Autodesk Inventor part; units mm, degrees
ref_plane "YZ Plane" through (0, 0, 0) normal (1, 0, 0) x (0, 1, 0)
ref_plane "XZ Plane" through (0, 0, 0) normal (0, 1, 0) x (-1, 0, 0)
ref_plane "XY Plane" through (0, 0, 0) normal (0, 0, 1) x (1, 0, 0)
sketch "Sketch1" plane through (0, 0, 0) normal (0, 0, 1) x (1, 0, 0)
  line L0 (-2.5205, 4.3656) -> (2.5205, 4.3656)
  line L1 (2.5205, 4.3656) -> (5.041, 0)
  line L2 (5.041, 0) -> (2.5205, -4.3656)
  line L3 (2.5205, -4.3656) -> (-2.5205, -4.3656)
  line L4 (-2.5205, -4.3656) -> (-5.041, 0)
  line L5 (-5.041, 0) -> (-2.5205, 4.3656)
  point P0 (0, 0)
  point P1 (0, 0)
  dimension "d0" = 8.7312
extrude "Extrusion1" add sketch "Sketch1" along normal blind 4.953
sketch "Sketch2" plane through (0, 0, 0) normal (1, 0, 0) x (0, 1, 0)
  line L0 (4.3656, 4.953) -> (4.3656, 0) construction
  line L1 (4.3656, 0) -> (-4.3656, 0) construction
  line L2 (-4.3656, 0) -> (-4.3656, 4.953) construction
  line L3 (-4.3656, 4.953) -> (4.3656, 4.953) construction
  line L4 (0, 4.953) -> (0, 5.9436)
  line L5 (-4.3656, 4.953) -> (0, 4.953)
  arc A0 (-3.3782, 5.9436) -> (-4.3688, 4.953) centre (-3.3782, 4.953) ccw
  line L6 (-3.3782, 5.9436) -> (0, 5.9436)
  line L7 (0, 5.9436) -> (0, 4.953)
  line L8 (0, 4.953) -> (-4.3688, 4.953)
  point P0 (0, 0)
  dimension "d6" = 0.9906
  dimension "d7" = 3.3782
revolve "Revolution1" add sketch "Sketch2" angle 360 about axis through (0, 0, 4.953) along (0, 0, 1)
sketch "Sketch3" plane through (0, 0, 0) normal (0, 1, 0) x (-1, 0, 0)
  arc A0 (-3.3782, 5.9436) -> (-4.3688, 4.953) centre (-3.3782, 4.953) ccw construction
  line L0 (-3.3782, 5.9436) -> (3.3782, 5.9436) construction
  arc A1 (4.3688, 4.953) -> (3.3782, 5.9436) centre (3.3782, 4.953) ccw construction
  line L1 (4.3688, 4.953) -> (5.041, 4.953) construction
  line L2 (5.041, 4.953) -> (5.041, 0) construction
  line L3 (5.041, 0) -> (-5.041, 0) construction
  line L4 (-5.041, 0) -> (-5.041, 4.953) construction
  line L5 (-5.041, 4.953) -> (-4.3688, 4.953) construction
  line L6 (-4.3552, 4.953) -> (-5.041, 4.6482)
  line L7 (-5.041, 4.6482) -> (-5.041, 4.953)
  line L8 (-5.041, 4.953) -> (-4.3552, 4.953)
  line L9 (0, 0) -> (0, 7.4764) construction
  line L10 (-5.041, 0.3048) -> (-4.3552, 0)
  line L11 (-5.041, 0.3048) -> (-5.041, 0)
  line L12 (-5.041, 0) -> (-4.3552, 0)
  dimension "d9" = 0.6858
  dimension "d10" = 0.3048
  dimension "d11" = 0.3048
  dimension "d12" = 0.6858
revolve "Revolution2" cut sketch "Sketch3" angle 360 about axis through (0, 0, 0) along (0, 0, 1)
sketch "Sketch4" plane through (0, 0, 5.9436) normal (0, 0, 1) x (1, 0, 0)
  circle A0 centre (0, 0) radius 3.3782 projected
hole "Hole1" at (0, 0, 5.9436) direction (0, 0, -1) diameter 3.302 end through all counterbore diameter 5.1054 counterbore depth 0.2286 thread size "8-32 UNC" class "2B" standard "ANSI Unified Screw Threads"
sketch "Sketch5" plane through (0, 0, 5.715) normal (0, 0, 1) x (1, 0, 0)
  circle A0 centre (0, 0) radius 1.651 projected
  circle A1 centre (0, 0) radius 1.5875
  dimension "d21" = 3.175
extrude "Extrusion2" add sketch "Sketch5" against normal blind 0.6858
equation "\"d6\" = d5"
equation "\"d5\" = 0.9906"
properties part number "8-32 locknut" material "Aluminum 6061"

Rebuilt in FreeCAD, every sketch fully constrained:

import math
import FreeCAD as App
import Part
import Sketcher
from FreeCAD import Vector
Q = App.Units.Quantity


def add_polygon(sketch, points):
    """Adds a closed chain of lines whose ends are joined by coincident constraints."""
    first, n = sketch.GeometryCount, len(points)
    for a, b in zip(points, points[1:] + points[:1]):
        sketch.addGeometry(Part.LineSegment(App.Vector(*a, 0), App.Vector(*b, 0)), False)
    for i in range(n):
        sketch.addConstraint(Sketcher.Constraint("Coincident", first + i, 2, first + (i + 1) % n, 1))

doc = App.newDocument("Part")
params = doc.addObject("Spreadsheet::Sheet", "Params")
for row, (alias, value) in enumerate([
    ("pad1_length", "0.195 in"),
    ("sketch2_radius", "0.039 in"),
    ("sketch2_width", "0.133 in"),
    ("revolution_angle", "360 deg"),
    ("sketch3_width", "0.027 in"),
    ("sketch3_height", "0.012 in"),
    ("groove_angle", "360 deg"),
    ("sketch4_diameter", "0.13 in"),
    ("hole_diameter", "0.13 in"),
    ("hole_cbore_diameter", "0.201 in"),
    ("hole_cbore_depth", "0.009 in"),
    ("sketch5_diameter", "0.125 in"),
    ("sketch5_diameter2", "0.13 in"),
    ("pad2_length", "0.027 in"),
], start=1):
    params.set(f"A{row}", alias)
    params.set(f"B{row}", "=" + value)
    params.setAlias(f"B{row}", alias)

body = doc.addObject("PartDesign::Body", "Body")

# Sketch on XY plane
sketch1 = body.newObject("Sketcher::SketchObject", "Sketch")
sketch1.AttachmentSupport = (doc.getObject("XY_Plane"), [""])
sketch1.MapMode = "FlatFace"
add_polygon(sketch1, [(2.5205, 4.3656), (-2.5205, 4.3656), (-5.041, 0), (-2.5205, -4.3656), (2.5205, -4.3656), (5.041, 0)])  # lines 0-5
sketch1.addConstraint([
    Sketcher.Constraint("Horizontal", 0),
    Sketcher.Constraint("Horizontal", 3),
    Sketcher.Constraint("Symmetric", 0, 2, 3, 2, -1, 1),
    Sketcher.Constraint("Symmetric", 1, 2, 4, 2, -1, 1),
    Sketcher.Constraint("PointOnObject", 1, 2, -1),
    Sketcher.Constraint("Parallel", 2, 5),
    Sketcher.Constraint("Vertical", 0, 2, 2, 2),
    Sketcher.Constraint("Angle", 1, Q("-120.0002 deg")),
    Sketcher.Constraint("DistanceY", 2, 2, 0, 2, Q("0.343748 in")),
    Sketcher.Constraint("DistanceX", 0, 2, 0, 1, 5.041),
])
pad1 = body.newObject("PartDesign::Pad", "Pad")
pad1.Profile = sketch1
pad1.setExpression("Length", "Params.pad1_length")

# Sketch on YZ plane
sketch2 = body.newObject("Sketcher::SketchObject", "Sketch001")
sketch2.AttachmentSupport = (doc.getObject("YZ_Plane"), [""])
sketch2.MapMode = "FlatFace"
sketch2.addGeometry([
    Part.LineSegment(Vector(-4.3688, 4.953, 0), Vector(0, 4.953, 0)),
    Part.LineSegment(Vector(0, 4.953, 0), Vector(0, 5.9436, 0)),
    Part.LineSegment(Vector(0, 5.9436, 0), Vector(-3.3782, 5.9436, 0)),
    Part.ArcOfCircle(Part.Circle(Vector(-3.3782, 4.953, 0), Vector(0, 0, 1), 0.9906), math.radians(90), math.radians(180)),
], False)
sketch2.addConstraint([
    Sketcher.Constraint("Coincident", 0, 2, 1, 1),
    Sketcher.Constraint("Coincident", 1, 2, 2, 1),
    Sketcher.Constraint("Tangent", 2, 2, 3, 1),
    Sketcher.Constraint("Coincident", 3, 2, 0, 1),
    Sketcher.Constraint("Horizontal", 0),
    Sketcher.Constraint("Vertical", 1),
    Sketcher.Constraint("Horizontal", 2),
    Sketcher.Constraint("PointOnObject", 0, 2, -2),
    Sketcher.Constraint("Horizontal", 3, 3, 0, 2),
    Sketcher.Constraint("Radius", 3, Q("0.039 in")),
    Sketcher.Constraint("DistanceX", 2, 2, 2, 1, Q("0.133 in")),
    Sketcher.Constraint("DistanceY", -1, 1, 3, 3, Q("0.195 in")),
])
sketch2.setExpression("Constraints[9]", "Params.sketch2_radius")
sketch2.setExpression("Constraints[10]", "Params.sketch2_width")
revolution = body.newObject("PartDesign::Revolution", "Revolution")
revolution.Profile = sketch2
revolution.ReferenceAxis = (sketch2, ["V_Axis"])
revolution.setExpression("Angle", "Params.revolution_angle")

# Sketch on XZ plane
sketch3 = body.newObject("Sketcher::SketchObject", "Sketch002")
sketch3.AttachmentSupport = (doc.getObject("XZ_Plane"), [""])
sketch3.MapMode = "FlatFace"
add_polygon(sketch3, [(5.041, 4.6482), (4.3552, 4.953), (5.041, 4.953)])  # lines 0-2
add_polygon(sketch3, [(4.3552, 0), (5.041, 0.3048), (5.041, 0)])  # lines 3-5
sketch3.addConstraint([
    Sketcher.Constraint("Horizontal", 1),
    Sketcher.Constraint("Vertical", 2),
    Sketcher.Constraint("Vertical", 4),
    Sketcher.Constraint("Horizontal", 5),
    Sketcher.Constraint("PointOnObject", 4, 2, -1),
    Sketcher.Constraint("Vertical", 2, 2, 3, 2),
    Sketcher.Constraint("Vertical", 0, 2, 5, 2),
    Sketcher.Constraint("Equal", 2, 4),
    Sketcher.Constraint("DistanceX", 1, 1, 1, 2, Q("0.027 in")),
    Sketcher.Constraint("DistanceY", 2, 2, 2, 1, Q("0.012 in")),
    Sketcher.Constraint("DistanceY", -1, 1, 0, 2, Q("0.195 in")),
    Sketcher.Constraint("DistanceX", -1, 1, 0, 2, 4.3552),
])
sketch3.setExpression("Constraints[14]", "Params.sketch3_width")
sketch3.setExpression("Constraints[15]", "Params.sketch3_height")
groove = body.newObject("PartDesign::Groove", "Groove")
groove.Profile = sketch3
groove.ReferenceAxis = (sketch3, ["V_Axis"])
groove.setExpression("Angle", "Params.groove_angle")

# Sketch on XY plane
sketch4 = body.newObject("Sketcher::SketchObject", "Sketch003")
sketch4.AttachmentSupport = (doc.getObject("XY_Plane"), [""])
sketch4.MapMode = "FlatFace"
sketch4.AttachmentOffset = App.Placement(Vector(0, 0, 0.234 * 25.4), App.Rotation())
sketch4.addGeometry(Part.Circle(Vector(0, 0, 0), Vector(0, 0, 1), 1.651), False)
sketch4.addConstraint([
    Sketcher.Constraint("Coincident", 0, 3, -1, 1),
    Sketcher.Constraint("Diameter", 0, Q("0.13 in")),
])
sketch4.setExpression("Constraints[1]", "Params.sketch4_diameter")
doc.recompute()
hole = body.newObject("PartDesign::Hole", "Hole")
hole.Profile = sketch4
hole.ThreadType = "None"
hole.setExpression("Diameter", "Params.hole_diameter")
hole.DepthType = "ThroughAll"
hole.HoleCutType = "Counterbore"
hole.setExpression("HoleCutDiameter", "Params.hole_cbore_diameter")
hole.setExpression("HoleCutDepth", "Params.hole_cbore_depth")

# Sketch on XY plane
sketch5 = body.newObject("Sketcher::SketchObject", "Sketch004")
sketch5.AttachmentSupport = (doc.getObject("XY_Plane"), [""])
sketch5.MapMode = "FlatFace"
sketch5.AttachmentOffset = App.Placement(Vector(0, 0, 0.225 * 25.4), App.Rotation())
sketch5.addGeometry([
    Part.Circle(Vector(0, 0, 0), Vector(0, 0, 1), 1.651),
    Part.Circle(Vector(0, 0, 0), Vector(0, 0, 1), 1.5875),
], False)
sketch5.addConstraint([
    Sketcher.Constraint("Coincident", 0, 3, -1, 1),
    Sketcher.Constraint("Coincident", 1, 3, -1, 1),
    Sketcher.Constraint("Diameter", 1, Q("0.125 in")),
    Sketcher.Constraint("Diameter", 0, Q("0.13 in")),
])
sketch5.setExpression("Constraints[2]", "Params.sketch5_diameter")
sketch5.setExpression("Constraints[3]", "Params.sketch5_diameter2")
pad2 = body.newObject("PartDesign::Pad", "Pad001")
pad2.Profile = sketch5
pad2.setExpression("Length", "Params.pad2_length")
pad2.Reversed = True

doc.recompute()
